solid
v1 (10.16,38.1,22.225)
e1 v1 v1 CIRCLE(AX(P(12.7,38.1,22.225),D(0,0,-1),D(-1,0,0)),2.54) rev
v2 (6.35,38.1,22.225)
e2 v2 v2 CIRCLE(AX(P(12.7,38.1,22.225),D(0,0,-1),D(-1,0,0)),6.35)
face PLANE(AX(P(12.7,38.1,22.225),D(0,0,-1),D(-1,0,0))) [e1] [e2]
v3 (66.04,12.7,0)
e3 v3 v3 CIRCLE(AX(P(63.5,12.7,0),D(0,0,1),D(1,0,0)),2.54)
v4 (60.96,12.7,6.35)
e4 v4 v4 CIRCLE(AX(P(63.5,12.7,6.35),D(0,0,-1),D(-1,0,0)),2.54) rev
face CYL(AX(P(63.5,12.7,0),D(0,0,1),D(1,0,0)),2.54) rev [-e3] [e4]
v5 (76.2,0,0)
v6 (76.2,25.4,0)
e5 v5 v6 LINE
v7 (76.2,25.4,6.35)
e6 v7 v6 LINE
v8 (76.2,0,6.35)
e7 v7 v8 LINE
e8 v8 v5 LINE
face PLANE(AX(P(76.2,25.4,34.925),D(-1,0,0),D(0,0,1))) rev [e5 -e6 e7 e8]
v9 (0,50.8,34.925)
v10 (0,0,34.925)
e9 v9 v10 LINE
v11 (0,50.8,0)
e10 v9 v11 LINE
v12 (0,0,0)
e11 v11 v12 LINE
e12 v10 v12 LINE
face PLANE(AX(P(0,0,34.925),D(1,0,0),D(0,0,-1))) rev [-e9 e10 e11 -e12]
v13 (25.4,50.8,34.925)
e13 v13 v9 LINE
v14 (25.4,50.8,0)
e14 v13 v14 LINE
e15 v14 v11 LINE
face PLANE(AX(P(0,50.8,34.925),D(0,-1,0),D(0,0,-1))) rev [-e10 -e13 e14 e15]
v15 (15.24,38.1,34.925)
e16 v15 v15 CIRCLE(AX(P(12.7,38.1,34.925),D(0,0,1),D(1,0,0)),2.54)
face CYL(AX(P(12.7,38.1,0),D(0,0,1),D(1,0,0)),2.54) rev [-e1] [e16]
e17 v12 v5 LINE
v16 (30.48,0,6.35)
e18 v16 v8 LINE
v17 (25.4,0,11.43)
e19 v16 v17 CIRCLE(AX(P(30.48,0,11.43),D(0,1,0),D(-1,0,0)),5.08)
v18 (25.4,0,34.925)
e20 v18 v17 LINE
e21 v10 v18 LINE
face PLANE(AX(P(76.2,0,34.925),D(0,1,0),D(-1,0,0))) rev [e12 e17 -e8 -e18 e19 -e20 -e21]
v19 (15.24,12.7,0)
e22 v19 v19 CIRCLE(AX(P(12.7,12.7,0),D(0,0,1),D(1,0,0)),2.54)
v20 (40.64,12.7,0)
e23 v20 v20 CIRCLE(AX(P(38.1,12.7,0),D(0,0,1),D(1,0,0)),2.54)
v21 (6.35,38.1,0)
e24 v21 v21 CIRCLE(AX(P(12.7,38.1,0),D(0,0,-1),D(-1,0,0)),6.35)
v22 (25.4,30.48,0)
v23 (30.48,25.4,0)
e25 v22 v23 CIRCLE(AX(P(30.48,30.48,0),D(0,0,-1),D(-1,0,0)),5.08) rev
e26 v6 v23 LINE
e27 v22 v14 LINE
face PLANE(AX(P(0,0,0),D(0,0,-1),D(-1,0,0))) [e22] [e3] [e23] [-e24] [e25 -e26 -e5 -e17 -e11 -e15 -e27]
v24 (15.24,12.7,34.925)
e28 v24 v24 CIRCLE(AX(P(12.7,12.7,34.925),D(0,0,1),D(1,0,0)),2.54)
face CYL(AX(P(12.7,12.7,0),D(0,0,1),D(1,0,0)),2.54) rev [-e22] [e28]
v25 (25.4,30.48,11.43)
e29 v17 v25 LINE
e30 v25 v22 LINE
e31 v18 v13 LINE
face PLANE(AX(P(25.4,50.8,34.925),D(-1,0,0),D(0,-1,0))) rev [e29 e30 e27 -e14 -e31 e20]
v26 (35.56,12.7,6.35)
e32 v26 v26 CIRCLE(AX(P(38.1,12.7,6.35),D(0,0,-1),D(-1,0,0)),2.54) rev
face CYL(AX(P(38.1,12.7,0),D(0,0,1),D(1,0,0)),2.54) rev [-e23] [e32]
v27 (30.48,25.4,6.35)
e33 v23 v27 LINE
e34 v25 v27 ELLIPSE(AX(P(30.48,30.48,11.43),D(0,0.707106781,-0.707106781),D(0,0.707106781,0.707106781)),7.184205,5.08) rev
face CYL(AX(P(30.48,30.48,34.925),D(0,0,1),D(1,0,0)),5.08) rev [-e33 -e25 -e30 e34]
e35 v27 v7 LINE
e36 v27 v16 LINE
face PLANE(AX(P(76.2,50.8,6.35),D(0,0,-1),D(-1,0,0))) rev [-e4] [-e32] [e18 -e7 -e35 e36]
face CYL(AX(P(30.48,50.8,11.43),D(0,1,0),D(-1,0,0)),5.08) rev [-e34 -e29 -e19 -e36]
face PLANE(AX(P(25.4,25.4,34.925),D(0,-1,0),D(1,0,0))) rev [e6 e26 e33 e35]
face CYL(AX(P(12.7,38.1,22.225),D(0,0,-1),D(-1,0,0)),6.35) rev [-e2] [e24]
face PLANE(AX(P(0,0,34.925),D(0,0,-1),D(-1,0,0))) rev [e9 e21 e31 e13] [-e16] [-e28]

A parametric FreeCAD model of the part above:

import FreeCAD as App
import Part
import Sketcher
from FreeCAD import Vector
Q = App.Units.Quantity


def edges_at(feature, points):
    """Names of the edges that pass closest to the given points."""
    edges = feature.Shape.Edges
    near = lambda p: min(range(len(edges)), key=lambda i: edges[i].distToShape(Part.Vertex(*p))[0])
    return sorted({f"Edge{near(p) + 1}" for p in points})


def add_polygon(sketch, points):
    """Adds a closed chain of lines whose ends are joined by coincident constraints."""
    first, n = sketch.GeometryCount, len(points)
    for a, b in zip(points, points[1:] + points[:1]):
        sketch.addGeometry(Part.LineSegment(App.Vector(*a, 0), App.Vector(*b, 0)), False)
    for i in range(n):
        sketch.addConstraint(Sketcher.Constraint("Coincident", first + i, 2, first + (i + 1) % n, 1))

doc = App.newDocument("Part")
body = doc.addObject("PartDesign::Body", "Body")

sketch1 = body.newObject("Sketcher::SketchObject", "Sketch")
sketch1.AttachmentSupport = (doc.getObject("XY_Plane"), [""])
sketch1.MapMode = "FlatFace"
add_polygon(sketch1, [(0, 51), (0, 0), (76, 0), (76, 25), (25, 25), (25, 51)])
sketch1.addConstraint(Sketcher.Constraint("Vertical", 0))
sketch1.addConstraint(Sketcher.Constraint("Horizontal", 1))
sketch1.addConstraint(Sketcher.Constraint("Vertical", 2))
sketch1.addConstraint(Sketcher.Constraint("Horizontal", 3))
sketch1.addConstraint(Sketcher.Constraint("Vertical", 4))
sketch1.addConstraint(Sketcher.Constraint("Horizontal", 5))
sketch1.addConstraint(Sketcher.Constraint("Coincident", 0, 2, -1, 1))
sketch1.addConstraint(Sketcher.Constraint("Equal", 3, 0))
sketch1.addConstraint(Sketcher.Constraint("Equal", 5, 2))
sketch1.addConstraint(Sketcher.Constraint("Equal", 2, 4))
sketch1.addConstraint(Sketcher.Constraint("DistanceX", 1, 1, 1, 2, Q("3 in")))
pad1 = body.newObject("PartDesign::Pad", "Pad")
pad1.Profile = sketch1
pad1.Length = Q("1.375 in")

sketch2 = body.newObject("Sketcher::SketchObject", "Sketch001")
sketch2.AttachmentSupport = (doc.getObject("XY_Plane"), [""])
sketch2.MapMode = "FlatFace"
sketch2.AttachmentOffset = App.Placement(Vector(0, 0, 1.375 * 25.4), App.Rotation())
sketch2.addGeometry(Part.Circle(Vector(12.7, 38.1, 0), Vector(0, 0, 1), 2.5), False)
sketch2.addGeometry(Part.Circle(Vector(12.7, 12.7, 0), Vector(0, 0, 1), 2.5), False)
sketch2.addGeometry(Part.Circle(Vector(38.1, 12.7, 0), Vector(0, 0, 1), 2.5), False)
sketch2.addGeometry(Part.Circle(Vector(63.5, 12.7, 0), Vector(0, 0, 1), 2.5), False)
sketch2.addConstraint(Sketcher.Constraint("Equal", 0, 1))
sketch2.addConstraint(Sketcher.Constraint("Equal", 1, 2))
sketch2.addConstraint(Sketcher.Constraint("Equal", 2, 3))
sketch2.addConstraint(Sketcher.Constraint("Horizontal", 1, 3, 2, 3))
sketch2.addConstraint(Sketcher.Constraint("Horizontal", 2, 3, 3, 3))
sketch2.addConstraint(Sketcher.Constraint("Vertical", 0, 3, 1, 3))
sketch2.addConstraint(Sketcher.Constraint("Diameter", 0, Q("0.2 in")))
sketch2.addConstraint(Sketcher.Constraint("DistanceY", 1, 3, 0, 3, Q("1 in")))
sketch2.addConstraint(Sketcher.Constraint("DistanceX", 1, 3, 2, 3, Q("1 in")))
sketch2.addConstraint(Sketcher.Constraint("DistanceX", 2, 3, 3, 3, Q("1 in")))
sketch2.addConstraint(Sketcher.Constraint("DistanceX", -1, 1, 0, 3, Q("0.5 in")))
sketch2.addConstraint(Sketcher.Constraint("DistanceY", -1, 1, 0, 3, Q("1.5 in")))
pocket1 = body.newObject("PartDesign::Pocket", "Pocket")
pocket1.Profile = sketch2
pocket1.Type = "ThroughAll"

sketch3 = body.newObject("Sketcher::SketchObject", "Sketch002")
sketch3.AttachmentSupport = (doc.getObject("XZ_Plane"), [""])
sketch3.MapMode = "FlatFace"
add_polygon(sketch3, [(25, 35), (25, 6), (76, 6), (76, 35)])
sketch3.addConstraint(Sketcher.Constraint("Vertical", 0))
sketch3.addConstraint(Sketcher.Constraint("Horizontal", 1))
sketch3.addConstraint(Sketcher.Constraint("Vertical", 2))
sketch3.addConstraint(Sketcher.Constraint("Horizontal", 3))
sketch3.addConstraint(Sketcher.Constraint("DistanceX", 1, 1, 1, 2, Q("2 in")))
sketch3.addConstraint(Sketcher.Constraint("DistanceX", -1, 1, 0, 2, Q("1 in")))
sketch3.addConstraint(Sketcher.Constraint("DistanceY", 0, 2, 0, 1, Q("1.125 in")))
sketch3.addConstraint(Sketcher.Constraint("DistanceY", -1, 1, 0, 2, Q("0.25 in")))
pocket2 = body.newObject("PartDesign::Pocket", "Pocket001")
pocket2.Profile = sketch3
pocket2.Type = "ThroughAll"
doc.recompute()

fillet = body.newObject("PartDesign::Fillet", "Fillet")
fillet.Base = (pocket2, edges_at(pocket2, [(25.4, 25.4, 3.175), (25.4, 12.7, 6.35)]))
fillet.Radius = Q("0.2 in")

sketch4 = body.newObject("Sketcher::SketchObject", "Sketch003")
sketch4.AttachmentSupport = (doc.getObject("XY_Plane"), [""])
sketch4.MapMode = "FlatFace"
sketch4.addGeometry(Part.Circle(Vector(13, 38, 0), Vector(0, 0, 1), 6), False)
sketch4.addConstraint(Sketcher.Constraint("Diameter", 0, Q("0.5 in")))
sketch4.addConstraint(Sketcher.Constraint("DistanceX", -1, 1, 0, 3, Q("0.5 in")))
sketch4.addConstraint(Sketcher.Constraint("DistanceY", -1, 1, 0, 3, Q("1.5 in")))
pocket3 = body.newObject("PartDesign::Pocket", "Pocket002")
pocket3.Profile = sketch4
pocket3.Length = Q("0.875 in")
pocket3.Reversed = True

doc.recompute()
